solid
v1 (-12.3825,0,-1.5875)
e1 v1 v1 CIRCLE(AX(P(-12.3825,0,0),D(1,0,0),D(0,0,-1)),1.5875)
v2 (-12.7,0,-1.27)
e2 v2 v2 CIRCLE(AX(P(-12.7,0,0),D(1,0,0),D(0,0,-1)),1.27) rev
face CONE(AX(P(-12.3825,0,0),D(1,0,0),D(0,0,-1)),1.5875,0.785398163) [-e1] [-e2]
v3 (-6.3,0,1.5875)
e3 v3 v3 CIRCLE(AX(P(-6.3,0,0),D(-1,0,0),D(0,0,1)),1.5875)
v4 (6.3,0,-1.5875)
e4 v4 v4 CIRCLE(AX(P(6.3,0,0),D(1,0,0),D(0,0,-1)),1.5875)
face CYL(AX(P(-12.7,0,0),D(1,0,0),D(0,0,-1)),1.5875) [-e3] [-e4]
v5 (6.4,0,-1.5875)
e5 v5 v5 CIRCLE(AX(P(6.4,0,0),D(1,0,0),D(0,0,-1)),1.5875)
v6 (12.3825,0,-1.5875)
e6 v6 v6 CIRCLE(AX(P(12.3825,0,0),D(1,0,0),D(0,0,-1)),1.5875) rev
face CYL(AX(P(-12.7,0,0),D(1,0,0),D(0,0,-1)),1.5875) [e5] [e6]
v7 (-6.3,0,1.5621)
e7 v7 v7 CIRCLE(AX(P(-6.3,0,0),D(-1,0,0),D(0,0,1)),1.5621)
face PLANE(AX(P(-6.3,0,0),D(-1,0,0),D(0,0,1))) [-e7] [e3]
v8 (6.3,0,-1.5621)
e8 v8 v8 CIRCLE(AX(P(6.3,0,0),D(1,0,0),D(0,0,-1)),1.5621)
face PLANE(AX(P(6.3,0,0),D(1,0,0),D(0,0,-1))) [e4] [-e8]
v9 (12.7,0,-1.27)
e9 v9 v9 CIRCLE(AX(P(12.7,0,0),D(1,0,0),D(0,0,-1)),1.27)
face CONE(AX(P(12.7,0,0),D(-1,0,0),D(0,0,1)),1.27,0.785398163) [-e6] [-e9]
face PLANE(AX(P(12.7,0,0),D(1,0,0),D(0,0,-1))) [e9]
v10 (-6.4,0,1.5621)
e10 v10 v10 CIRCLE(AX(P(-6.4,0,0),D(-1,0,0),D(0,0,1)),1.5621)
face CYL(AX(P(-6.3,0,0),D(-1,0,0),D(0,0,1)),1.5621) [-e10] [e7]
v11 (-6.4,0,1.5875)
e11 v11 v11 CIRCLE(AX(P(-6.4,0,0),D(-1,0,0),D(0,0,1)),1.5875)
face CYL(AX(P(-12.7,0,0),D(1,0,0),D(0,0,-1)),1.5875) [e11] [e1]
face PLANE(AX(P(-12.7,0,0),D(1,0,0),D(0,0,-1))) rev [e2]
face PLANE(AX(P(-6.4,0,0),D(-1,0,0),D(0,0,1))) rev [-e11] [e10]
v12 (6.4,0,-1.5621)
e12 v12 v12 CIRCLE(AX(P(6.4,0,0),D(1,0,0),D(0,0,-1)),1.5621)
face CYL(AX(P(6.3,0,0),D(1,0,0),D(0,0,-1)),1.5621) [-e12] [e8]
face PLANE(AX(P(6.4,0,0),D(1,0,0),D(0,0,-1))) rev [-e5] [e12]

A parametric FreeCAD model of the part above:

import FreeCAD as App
import Part
import Sketcher

V = App.Vector
Q = App.Units.Quantity


def edges_at(feature, points):
    """Names of the edges that pass closest to the given points."""
    edges = feature.Shape.Edges
    near = lambda p: min(range(len(edges)), key=lambda i: edges[i].distToShape(Part.Vertex(*p))[0])
    return sorted({f"Edge{near(p) + 1}" for p in points})

doc = App.newDocument("Part")
body = doc.addObject("PartDesign::Body", "Body")

# Sketch on YZ plane
sketch1 = body.newObject("Sketcher::SketchObject", "Sketch")
sketch1.AttachmentSupport = (doc.getObject("YZ_Plane"), [""])
sketch1.MapMode = "FlatFace"
sketch1.addGeometry(Part.Circle(V(0, 0, 0), V(0, 0, 1), 1.5875), False)
sketch1.addConstraint([
    Sketcher.Constraint("Coincident", 0, 3, -1, 1),
    Sketcher.Constraint("Diameter", 0, Q("0.125 in")),
])
pad1 = body.newObject("PartDesign::Pad", "Pad")
pad1.Profile = sketch1
pad1.Type = "TwoLengths"
pad1.Length = Q("0.5 in")
pad1.Length2 = Q("0.5 in")
doc.recompute()

chamfer = body.newObject("PartDesign::Chamfer", "Chamfer")
chamfer.Base = (pad1, edges_at(pad1, [(-12.7, 0, 1.587), (12.7, 0, 1.587)]))
chamfer.Size = Q("0.0125 in")

# Sketch on YZ plane
sketch2 = body.newObject("Sketcher::SketchObject", "Sketch001")
sketch2.AttachmentSupport = (doc.getObject("YZ_Plane"), [""])
sketch2.MapMode = "FlatFace"
sketch2.AttachmentOffset = App.Placement(V(0, 0, -0.25 * 25.4), App.Rotation())
sketch2.addGeometry([
    Part.Circle(V(0, 0, 0), V(0, 0, 1), 1.5875),
    Part.Circle(V(0, 0, 0), V(0, 0, 1), 1.5621),
], False)
sketch2.addConstraint([
    Sketcher.Constraint("Coincident", 0, 3, -1, 1),
    Sketcher.Constraint("Coincident", 1, 3, -1, 1),
    Sketcher.Constraint("Diameter", 0, Q("0.125 in")),
    Sketcher.Constraint("Diameter", 1, Q("0.123 in")),
])
pocket1 = body.newObject("PartDesign::Pocket", "Pocket")
pocket1.Profile = sketch2
pocket1.Length = 0.1
pocket1.Midplane = True

# Sketch on YZ plane
sketch3 = body.newObject("Sketcher::SketchObject", "Sketch002")
sketch3.AttachmentSupport = (doc.getObject("YZ_Plane"), [""])
sketch3.MapMode = "FlatFace"
sketch3.AttachmentOffset = App.Placement(V(0, 0, 0.25 * 25.4), App.Rotation())
sketch3.addGeometry([
    Part.Circle(V(0, 0, 0), V(0, 0, 1), 1.5875),
    Part.Circle(V(0, 0, 0), V(0, 0, 1), 1.5621),
], False)
sketch3.addConstraint([
    Sketcher.Constraint("Coincident", 0, 3, -1, 1),
    Sketcher.Constraint("Coincident", 1, 3, -1, 1),
    Sketcher.Constraint("Diameter", 0, Q("0.125 in")),
    Sketcher.Constraint("Diameter", 1, Q("0.123 in")),
])
pocket2 = body.newObject("PartDesign::Pocket", "Pocket001")
pocket2.Profile = sketch3
pocket2.Length = 0.1
pocket2.Midplane = True

doc.recompute()
